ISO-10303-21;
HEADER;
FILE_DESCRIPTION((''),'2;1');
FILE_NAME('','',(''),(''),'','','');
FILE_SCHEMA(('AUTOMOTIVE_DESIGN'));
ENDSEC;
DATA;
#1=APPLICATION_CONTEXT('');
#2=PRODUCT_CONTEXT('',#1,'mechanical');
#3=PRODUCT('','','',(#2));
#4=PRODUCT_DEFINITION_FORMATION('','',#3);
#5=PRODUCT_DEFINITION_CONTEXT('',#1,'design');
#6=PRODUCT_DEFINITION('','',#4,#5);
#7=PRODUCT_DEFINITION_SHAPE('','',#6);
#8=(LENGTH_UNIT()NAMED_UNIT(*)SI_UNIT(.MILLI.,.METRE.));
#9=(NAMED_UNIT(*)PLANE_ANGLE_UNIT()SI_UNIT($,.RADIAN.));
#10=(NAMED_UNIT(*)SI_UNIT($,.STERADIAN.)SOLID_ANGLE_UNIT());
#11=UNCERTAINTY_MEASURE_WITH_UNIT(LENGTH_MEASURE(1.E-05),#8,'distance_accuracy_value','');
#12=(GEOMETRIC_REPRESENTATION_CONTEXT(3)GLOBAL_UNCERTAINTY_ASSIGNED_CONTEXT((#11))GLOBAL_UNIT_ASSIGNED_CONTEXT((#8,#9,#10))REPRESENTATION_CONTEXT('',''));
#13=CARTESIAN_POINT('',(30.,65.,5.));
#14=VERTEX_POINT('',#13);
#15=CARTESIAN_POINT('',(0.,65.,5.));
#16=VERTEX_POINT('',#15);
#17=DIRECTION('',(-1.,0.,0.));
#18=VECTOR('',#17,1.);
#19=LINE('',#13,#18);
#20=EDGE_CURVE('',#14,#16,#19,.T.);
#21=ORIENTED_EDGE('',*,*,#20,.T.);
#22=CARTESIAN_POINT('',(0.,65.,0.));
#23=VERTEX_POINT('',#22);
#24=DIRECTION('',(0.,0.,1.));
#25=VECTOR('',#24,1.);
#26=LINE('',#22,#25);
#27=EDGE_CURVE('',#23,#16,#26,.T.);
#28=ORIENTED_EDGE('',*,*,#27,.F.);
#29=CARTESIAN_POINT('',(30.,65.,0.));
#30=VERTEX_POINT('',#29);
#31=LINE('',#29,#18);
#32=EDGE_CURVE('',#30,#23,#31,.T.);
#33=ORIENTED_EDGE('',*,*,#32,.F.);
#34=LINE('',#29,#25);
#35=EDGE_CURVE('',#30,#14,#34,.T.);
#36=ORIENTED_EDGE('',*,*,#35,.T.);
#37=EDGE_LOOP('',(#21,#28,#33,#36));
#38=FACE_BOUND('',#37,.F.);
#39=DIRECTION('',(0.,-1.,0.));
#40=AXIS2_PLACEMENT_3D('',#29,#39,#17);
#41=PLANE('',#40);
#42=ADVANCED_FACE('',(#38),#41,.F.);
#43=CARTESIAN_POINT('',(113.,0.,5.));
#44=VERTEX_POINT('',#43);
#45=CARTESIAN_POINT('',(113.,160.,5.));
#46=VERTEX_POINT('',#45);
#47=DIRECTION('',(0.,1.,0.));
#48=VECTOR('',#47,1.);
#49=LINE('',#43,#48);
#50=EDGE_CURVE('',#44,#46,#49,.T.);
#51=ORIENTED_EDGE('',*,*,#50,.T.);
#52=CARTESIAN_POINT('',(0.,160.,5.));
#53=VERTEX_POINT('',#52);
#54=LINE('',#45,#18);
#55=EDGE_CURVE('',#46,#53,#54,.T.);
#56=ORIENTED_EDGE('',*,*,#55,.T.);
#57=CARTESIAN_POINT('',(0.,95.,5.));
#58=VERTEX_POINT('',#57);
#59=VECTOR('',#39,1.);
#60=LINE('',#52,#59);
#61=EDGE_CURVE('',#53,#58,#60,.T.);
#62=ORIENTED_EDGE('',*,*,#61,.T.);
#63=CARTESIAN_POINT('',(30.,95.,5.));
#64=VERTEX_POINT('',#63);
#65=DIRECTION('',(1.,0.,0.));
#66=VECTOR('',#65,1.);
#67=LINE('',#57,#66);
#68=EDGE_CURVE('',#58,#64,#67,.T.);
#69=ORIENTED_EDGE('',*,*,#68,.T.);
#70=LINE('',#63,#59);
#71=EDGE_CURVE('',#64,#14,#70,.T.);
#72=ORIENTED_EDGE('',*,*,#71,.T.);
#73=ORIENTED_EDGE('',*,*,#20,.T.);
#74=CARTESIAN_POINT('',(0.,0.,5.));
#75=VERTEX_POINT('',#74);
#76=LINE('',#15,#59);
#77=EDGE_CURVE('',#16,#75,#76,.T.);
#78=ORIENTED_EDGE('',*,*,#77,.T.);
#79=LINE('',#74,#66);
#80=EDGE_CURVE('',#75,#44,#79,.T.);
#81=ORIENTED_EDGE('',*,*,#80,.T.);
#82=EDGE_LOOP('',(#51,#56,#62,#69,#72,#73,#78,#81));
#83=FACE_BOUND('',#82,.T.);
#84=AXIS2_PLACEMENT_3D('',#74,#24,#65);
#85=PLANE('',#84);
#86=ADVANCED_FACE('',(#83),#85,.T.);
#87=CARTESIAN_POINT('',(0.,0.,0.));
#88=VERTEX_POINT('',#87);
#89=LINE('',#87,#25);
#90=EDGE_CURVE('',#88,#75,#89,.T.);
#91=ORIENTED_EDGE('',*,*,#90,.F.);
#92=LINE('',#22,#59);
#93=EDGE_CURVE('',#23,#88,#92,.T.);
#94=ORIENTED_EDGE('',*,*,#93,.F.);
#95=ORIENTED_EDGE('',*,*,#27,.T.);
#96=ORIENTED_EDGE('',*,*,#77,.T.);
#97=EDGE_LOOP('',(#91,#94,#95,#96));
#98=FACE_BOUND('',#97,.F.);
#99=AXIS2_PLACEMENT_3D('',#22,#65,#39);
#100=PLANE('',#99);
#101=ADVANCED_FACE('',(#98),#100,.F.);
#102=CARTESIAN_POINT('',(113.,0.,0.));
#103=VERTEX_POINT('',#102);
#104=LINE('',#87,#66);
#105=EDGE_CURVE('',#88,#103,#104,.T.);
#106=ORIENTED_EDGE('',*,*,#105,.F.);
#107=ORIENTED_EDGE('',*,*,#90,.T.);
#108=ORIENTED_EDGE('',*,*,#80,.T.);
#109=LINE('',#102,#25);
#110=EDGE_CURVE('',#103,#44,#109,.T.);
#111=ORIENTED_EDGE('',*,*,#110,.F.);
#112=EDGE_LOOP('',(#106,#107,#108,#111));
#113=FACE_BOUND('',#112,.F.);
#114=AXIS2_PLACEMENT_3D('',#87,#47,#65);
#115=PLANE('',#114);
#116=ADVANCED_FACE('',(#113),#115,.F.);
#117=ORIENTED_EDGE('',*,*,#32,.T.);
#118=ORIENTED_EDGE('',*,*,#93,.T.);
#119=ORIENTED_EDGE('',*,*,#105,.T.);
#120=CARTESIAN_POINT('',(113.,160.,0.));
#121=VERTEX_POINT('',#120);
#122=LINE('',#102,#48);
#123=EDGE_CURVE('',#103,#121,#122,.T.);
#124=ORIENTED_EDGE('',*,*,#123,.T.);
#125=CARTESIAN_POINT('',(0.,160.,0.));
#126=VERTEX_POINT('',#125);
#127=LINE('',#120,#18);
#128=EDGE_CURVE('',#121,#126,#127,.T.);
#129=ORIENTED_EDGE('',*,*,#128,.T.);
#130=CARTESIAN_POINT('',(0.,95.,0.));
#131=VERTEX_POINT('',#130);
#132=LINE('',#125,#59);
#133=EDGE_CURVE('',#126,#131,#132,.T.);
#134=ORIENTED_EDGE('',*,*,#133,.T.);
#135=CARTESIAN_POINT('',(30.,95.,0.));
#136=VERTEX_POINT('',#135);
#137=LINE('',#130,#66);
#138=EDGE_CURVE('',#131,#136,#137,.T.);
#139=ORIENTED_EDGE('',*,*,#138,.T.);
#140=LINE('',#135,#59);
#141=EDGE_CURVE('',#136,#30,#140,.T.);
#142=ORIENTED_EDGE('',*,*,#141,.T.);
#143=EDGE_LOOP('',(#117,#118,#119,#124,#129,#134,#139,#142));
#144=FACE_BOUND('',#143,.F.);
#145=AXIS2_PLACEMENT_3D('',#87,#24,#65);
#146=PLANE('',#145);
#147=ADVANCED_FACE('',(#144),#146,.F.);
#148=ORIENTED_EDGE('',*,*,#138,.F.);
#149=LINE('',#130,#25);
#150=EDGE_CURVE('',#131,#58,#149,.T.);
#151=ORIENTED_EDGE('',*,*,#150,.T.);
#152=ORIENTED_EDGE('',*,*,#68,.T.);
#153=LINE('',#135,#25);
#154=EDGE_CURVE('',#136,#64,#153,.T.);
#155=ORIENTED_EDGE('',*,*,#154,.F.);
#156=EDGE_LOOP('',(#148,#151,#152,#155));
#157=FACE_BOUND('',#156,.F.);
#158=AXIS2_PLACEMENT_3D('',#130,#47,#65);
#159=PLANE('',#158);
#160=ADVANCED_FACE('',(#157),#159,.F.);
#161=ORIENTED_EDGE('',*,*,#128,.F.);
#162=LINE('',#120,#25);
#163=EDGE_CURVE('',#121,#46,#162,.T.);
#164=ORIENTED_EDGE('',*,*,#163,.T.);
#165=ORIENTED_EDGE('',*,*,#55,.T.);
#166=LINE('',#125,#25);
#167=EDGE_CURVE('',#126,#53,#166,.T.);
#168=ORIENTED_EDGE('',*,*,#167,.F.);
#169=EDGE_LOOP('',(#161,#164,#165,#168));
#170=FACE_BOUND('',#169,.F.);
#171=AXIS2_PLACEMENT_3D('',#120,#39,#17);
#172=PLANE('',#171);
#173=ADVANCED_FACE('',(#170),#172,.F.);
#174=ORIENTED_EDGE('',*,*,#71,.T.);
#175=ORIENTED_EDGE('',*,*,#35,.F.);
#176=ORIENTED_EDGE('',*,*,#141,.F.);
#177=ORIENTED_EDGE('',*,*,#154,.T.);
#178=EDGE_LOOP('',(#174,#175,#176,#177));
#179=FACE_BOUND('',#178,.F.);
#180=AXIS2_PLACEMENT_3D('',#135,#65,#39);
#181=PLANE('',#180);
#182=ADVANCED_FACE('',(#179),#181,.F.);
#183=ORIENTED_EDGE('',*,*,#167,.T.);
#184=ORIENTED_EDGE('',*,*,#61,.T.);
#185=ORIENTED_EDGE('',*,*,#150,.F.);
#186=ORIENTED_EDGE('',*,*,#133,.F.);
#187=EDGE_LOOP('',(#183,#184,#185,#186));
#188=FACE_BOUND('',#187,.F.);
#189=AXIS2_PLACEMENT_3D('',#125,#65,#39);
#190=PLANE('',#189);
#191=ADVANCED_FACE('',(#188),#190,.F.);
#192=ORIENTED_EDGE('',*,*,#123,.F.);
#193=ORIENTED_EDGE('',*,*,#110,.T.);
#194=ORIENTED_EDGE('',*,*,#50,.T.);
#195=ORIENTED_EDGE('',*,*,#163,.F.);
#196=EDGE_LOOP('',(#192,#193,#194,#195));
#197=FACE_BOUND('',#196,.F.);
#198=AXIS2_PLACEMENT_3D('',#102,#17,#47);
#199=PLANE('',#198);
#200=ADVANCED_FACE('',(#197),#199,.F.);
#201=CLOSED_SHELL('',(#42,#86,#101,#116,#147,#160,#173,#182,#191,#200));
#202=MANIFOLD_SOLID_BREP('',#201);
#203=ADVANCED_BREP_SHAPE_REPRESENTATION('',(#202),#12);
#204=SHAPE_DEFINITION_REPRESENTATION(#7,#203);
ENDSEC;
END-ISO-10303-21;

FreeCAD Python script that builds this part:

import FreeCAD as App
import Part
import Sketcher
Q = App.Units.Quantity


def add_polygon(sketch, points):
    """Adds a closed chain of lines whose ends are joined by coincident constraints."""
    first, n = sketch.GeometryCount, len(points)
    for a, b in zip(points, points[1:] + points[:1]):
        sketch.addGeometry(Part.LineSegment(App.Vector(*a, 0), App.Vector(*b, 0)), False)
    for i in range(n):
        sketch.addConstraint(Sketcher.Constraint("Coincident", first + i, 2, first + (i + 1) % n, 1))

doc = App.newDocument("Part")
body = doc.addObject("PartDesign::Body", "Body")

sketch1 = doc.addObject("Sketcher::SketchObject", "Sketch")
body.addObject(sketch1)
sketch1.AttachmentSupport = (doc.XY_Plane, [""])
sketch1.MapMode = "FlatFace"
add_polygon(sketch1, [(0, 65), (0, 0), (113, 0), (113, 160), (0, 160), (0, 95), (30, 95), (30, 65)])
sketch1.addConstraint(Sketcher.Constraint("Vertical", 0))
sketch1.addConstraint(Sketcher.Constraint("Horizontal", 1))
sketch1.addConstraint(Sketcher.Constraint("Vertical", 2))
sketch1.addConstraint(Sketcher.Constraint("Horizontal", 3))
sketch1.addConstraint(Sketcher.Constraint("Vertical", 4))
sketch1.addConstraint(Sketcher.Constraint("Horizontal", 5))
sketch1.addConstraint(Sketcher.Constraint("Vertical", 6))
sketch1.addConstraint(Sketcher.Constraint("Horizontal", 7))
sketch1.addConstraint(Sketcher.Constraint("Coincident", 0, 2, -1, 1))
sketch1.addConstraint(Sketcher.Constraint("PointOnObject", 3, 2, -2))
sketch1.addConstraint(Sketcher.Constraint("Equal", 0, 4))
sketch1.addConstraint(Sketcher.Constraint("Equal", 7, 6))
sketch1.addConstraint(Sketcher.Constraint("DistanceX", 1, 1, 1, 2, Q("113 mm")))
sketch1.addConstraint(Sketcher.Constraint("DistanceX", 5, 1, 5, 2, Q("30 mm")))
sketch1.addConstraint(Sketcher.Constraint("DistanceY", 0, 2, 0, 1, Q("65 mm")))
pad1 = doc.addObject("PartDesign::Pad", "Pad")
body.addObject(pad1)
pad1.Profile = sketch1
pad1.Length = 5

doc.recompute()
